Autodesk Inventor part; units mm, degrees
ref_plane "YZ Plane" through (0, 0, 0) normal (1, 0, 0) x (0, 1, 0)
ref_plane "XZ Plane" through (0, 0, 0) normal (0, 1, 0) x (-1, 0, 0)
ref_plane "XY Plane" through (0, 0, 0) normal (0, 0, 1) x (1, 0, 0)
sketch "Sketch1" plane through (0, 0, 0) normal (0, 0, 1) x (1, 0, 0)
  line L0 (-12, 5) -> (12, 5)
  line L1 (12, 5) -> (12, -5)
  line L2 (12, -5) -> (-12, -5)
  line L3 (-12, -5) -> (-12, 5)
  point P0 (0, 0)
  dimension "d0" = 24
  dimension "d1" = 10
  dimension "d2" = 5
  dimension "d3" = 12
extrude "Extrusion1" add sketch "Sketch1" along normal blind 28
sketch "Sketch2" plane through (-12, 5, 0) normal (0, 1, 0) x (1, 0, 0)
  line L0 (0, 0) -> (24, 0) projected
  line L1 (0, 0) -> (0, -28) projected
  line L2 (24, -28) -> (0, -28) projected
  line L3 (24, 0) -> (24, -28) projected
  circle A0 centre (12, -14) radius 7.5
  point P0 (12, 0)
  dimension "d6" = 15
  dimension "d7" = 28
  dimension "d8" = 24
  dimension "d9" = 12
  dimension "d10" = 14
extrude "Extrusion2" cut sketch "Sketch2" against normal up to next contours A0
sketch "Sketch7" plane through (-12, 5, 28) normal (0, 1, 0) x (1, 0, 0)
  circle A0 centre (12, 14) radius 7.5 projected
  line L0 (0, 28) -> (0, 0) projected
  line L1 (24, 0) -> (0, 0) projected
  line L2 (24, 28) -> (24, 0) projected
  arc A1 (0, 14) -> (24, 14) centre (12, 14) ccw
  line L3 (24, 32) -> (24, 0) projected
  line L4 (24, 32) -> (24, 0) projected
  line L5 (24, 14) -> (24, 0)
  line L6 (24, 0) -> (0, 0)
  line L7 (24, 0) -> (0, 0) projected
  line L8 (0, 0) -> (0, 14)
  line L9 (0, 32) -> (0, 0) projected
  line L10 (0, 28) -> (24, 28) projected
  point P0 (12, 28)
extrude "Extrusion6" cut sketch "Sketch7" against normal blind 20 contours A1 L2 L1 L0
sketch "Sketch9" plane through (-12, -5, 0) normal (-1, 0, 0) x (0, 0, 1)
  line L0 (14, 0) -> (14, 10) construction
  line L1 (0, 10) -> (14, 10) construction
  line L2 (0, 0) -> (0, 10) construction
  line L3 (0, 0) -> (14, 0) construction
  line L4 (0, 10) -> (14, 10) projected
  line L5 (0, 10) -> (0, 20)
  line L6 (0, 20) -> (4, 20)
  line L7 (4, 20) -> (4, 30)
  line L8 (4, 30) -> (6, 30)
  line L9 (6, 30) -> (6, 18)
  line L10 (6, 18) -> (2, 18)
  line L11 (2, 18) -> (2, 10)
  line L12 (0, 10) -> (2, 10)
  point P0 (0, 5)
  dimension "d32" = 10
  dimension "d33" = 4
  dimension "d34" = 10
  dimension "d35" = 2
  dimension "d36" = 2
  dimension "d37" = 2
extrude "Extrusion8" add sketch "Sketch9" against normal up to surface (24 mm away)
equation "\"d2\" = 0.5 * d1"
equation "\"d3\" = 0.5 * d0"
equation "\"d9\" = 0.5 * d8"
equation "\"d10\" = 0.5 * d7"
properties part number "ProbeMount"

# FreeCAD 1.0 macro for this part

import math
import FreeCAD as App
import Part
import Sketcher
from FreeCAD import Vector


def add_polygon(sketch, points):
    """Adds a closed chain of lines whose ends are joined by coincident constraints."""
    first, n = sketch.GeometryCount, len(points)
    for a, b in zip(points, points[1:] + points[:1]):
        sketch.addGeometry(Part.LineSegment(App.Vector(*a, 0), App.Vector(*b, 0)), False)
    for i in range(n):
        sketch.addConstraint(Sketcher.Constraint("Coincident", first + i, 2, first + (i + 1) % n, 1))

doc = App.newDocument("Part")
params = doc.addObject("Spreadsheet::Sheet", "Params")
for row, (alias, value) in enumerate([
    ("sketch1_width", "24 mm"),
    ("sketch1_height", "10 mm"),
    ("pad1_length", "28 mm"),
    ("sketch2_diameter", "15 mm"),
    ("sketch3_radius", "12 mm"),
    ("sketch3_height", "14 mm"),
    ("pocket2_length", "20 mm"),
    ("sketch4_width", "10 mm"),
    ("sketch4_height", "2 mm"),
    ("sketch4_height2", "4 mm"),
    ("pad2_length", "24 mm"),
], start=1):
    params.set(f"A{row}", alias)
    params.set(f"B{row}", "=" + value)
    params.setAlias(f"B{row}", alias)

body = doc.addObject("PartDesign::Body", "Body")

sketch1 = body.newObject("Sketcher::SketchObject", "Sketch")
sketch1.AttachmentSupport = (doc.getObject("XY_Plane"), [""])
sketch1.MapMode = "FlatFace"
add_polygon(sketch1, [(12, 5), (-12, 5), (-12, -5), (12, -5)])
sketch1.addConstraint([
    Sketcher.Constraint("Horizontal", 0),
    Sketcher.Constraint("Vertical", 1),
    Sketcher.Constraint("Horizontal", 2),
    Sketcher.Constraint("Vertical", 3),
    Sketcher.Constraint("Symmetric", 0, 2, 2, 2, -1, 1),
    Sketcher.Constraint("DistanceX", 0, 2, 0, 1, 24.0),
    Sketcher.Constraint("DistanceY", 1, 2, 1, 1, 10.0),
])
sketch1.setExpression("Constraints[9]", "Params.sketch1_width")
sketch1.setExpression("Constraints[10]", "Params.sketch1_height")
pad1 = body.newObject("PartDesign::Pad", "Pad")
pad1.Profile = sketch1
pad1.setExpression("Length", "Params.pad1_length")

sketch2 = body.newObject("Sketcher::SketchObject", "Sketch001")
sketch2.AttachmentSupport = (doc.getObject("XZ_Plane"), [""])
sketch2.MapMode = "FlatFace"
sketch2.AttachmentOffset = App.Placement(Vector(0, 0, -5), App.Rotation())
sketch2.addGeometry(Part.Circle(Vector(0, 14, 0), Vector(0, 0, 1), 8), False)
sketch2.addConstraint([
    Sketcher.Constraint("PointOnObject", 0, 3, -2),
    Sketcher.Constraint("Diameter", 0, 15.0),
    Sketcher.Constraint("DistanceY", -1, 1, 0, 3, 14.0),
])
sketch2.setExpression("Constraints[1]", "Params.sketch2_diameter")
pocket1 = body.newObject("PartDesign::Pocket", "Pocket")
pocket1.Profile = sketch2
pocket1.Type = "UpToFirst"
pocket1.Reversed = True

sketch3 = body.newObject("Sketcher::SketchObject", "Sketch002")
sketch3.AttachmentSupport = (doc.getObject("XZ_Plane"), [""])
sketch3.MapMode = "FlatFace"
sketch3.AttachmentOffset = App.Placement(Vector(0, 0, -5), App.Rotation())
sketch3.addGeometry([
    Part.ArcOfCircle(Part.Circle(Vector(0, 14, 0), Vector(0, 0, 1), 12), math.radians(0), math.radians(180)),
    Part.LineSegment(Vector(-12, 14, 0), Vector(-12, 28, 0)),
    Part.LineSegment(Vector(-12, 28, 0), Vector(12, 28, 0)),
    Part.LineSegment(Vector(12, 28, 0), Vector(12, 14, 0)),
], False)
sketch3.addConstraint([
    Sketcher.Constraint("Tangent", 0, 2, 1, 1),
    Sketcher.Constraint("Coincident", 1, 2, 2, 1),
    Sketcher.Constraint("Coincident", 2, 2, 3, 1),
    Sketcher.Constraint("Tangent", 3, 2, 0, 1),
    Sketcher.Constraint("Vertical", 1),
    Sketcher.Constraint("Horizontal", 2),
    Sketcher.Constraint("Vertical", 3),
    Sketcher.Constraint("PointOnObject", 0, 3, -2),
    Sketcher.Constraint("Radius", 0, 12.0),
    Sketcher.Constraint("DistanceY", 1, 1, 1, 2, 14.0),
    Sketcher.Constraint("DistanceY", -1, 1, 0, 3, 14.0),
])
sketch3.setExpression("Constraints[8]", "Params.sketch3_radius")
sketch3.setExpression("Constraints[9]", "Params.sketch3_height")
pocket2 = body.newObject("PartDesign::Pocket", "Pocket001")
pocket2.Profile = sketch3
pocket2.setExpression("Length", "Params.pocket2_length")
pocket2.Reversed = True

sketch4 = body.newObject("Sketcher::SketchObject", "Sketch003")
sketch4.AttachmentSupport = (doc.getObject("YZ_Plane"), [""])
sketch4.MapMode = "FlatFace"
sketch4.AttachmentOffset = App.Placement(Vector(0, 0, -12), App.Rotation())
add_polygon(sketch4, [(15, 0), (5, 0), (5, 2), (13, 2), (13, 6), (25, 6), (25, 4), (15, 4)])
sketch4.addConstraint([
    Sketcher.Constraint("Horizontal", 0),
    Sketcher.Constraint("Vertical", 1),
    Sketcher.Constraint("Horizontal", 2),
    Sketcher.Constraint("Vertical", 3),
    Sketcher.Constraint("Horizontal", 4),
    Sketcher.Constraint("Vertical", 5),
    Sketcher.Constraint("Horizontal", 6),
    Sketcher.Constraint("Vertical", 7),
    Sketcher.Constraint("PointOnObject", 0, 2, -1),
    Sketcher.Constraint("Equal", 0, 6),
    Sketcher.Constraint("Equal", 1, 5),
    Sketcher.Constraint("DistanceX", 0, 2, 0, 1, 10.0),
    Sketcher.Constraint("DistanceY", 1, 1, 1, 2, 2.0),
    Sketcher.Constraint("DistanceY", 3, 1, 3, 2, 4.0),
    Sketcher.Constraint("DistanceX", 2, 2, 6, 2, 2.0),
    Sketcher.Constraint("DistanceX", -1, 1, 0, 2, 5.0),
])
sketch4.setExpression("Constraints[19]", "Params.sketch4_width")
sketch4.setExpression("Constraints[20]", "Params.sketch4_height")
sketch4.setExpression("Constraints[21]", "Params.sketch4_height2")
pad2 = body.newObject("PartDesign::Pad", "Pad001")
pad2.Profile = sketch4
pad2.setExpression("Length", "Params.pad2_length")

doc.recompute()
